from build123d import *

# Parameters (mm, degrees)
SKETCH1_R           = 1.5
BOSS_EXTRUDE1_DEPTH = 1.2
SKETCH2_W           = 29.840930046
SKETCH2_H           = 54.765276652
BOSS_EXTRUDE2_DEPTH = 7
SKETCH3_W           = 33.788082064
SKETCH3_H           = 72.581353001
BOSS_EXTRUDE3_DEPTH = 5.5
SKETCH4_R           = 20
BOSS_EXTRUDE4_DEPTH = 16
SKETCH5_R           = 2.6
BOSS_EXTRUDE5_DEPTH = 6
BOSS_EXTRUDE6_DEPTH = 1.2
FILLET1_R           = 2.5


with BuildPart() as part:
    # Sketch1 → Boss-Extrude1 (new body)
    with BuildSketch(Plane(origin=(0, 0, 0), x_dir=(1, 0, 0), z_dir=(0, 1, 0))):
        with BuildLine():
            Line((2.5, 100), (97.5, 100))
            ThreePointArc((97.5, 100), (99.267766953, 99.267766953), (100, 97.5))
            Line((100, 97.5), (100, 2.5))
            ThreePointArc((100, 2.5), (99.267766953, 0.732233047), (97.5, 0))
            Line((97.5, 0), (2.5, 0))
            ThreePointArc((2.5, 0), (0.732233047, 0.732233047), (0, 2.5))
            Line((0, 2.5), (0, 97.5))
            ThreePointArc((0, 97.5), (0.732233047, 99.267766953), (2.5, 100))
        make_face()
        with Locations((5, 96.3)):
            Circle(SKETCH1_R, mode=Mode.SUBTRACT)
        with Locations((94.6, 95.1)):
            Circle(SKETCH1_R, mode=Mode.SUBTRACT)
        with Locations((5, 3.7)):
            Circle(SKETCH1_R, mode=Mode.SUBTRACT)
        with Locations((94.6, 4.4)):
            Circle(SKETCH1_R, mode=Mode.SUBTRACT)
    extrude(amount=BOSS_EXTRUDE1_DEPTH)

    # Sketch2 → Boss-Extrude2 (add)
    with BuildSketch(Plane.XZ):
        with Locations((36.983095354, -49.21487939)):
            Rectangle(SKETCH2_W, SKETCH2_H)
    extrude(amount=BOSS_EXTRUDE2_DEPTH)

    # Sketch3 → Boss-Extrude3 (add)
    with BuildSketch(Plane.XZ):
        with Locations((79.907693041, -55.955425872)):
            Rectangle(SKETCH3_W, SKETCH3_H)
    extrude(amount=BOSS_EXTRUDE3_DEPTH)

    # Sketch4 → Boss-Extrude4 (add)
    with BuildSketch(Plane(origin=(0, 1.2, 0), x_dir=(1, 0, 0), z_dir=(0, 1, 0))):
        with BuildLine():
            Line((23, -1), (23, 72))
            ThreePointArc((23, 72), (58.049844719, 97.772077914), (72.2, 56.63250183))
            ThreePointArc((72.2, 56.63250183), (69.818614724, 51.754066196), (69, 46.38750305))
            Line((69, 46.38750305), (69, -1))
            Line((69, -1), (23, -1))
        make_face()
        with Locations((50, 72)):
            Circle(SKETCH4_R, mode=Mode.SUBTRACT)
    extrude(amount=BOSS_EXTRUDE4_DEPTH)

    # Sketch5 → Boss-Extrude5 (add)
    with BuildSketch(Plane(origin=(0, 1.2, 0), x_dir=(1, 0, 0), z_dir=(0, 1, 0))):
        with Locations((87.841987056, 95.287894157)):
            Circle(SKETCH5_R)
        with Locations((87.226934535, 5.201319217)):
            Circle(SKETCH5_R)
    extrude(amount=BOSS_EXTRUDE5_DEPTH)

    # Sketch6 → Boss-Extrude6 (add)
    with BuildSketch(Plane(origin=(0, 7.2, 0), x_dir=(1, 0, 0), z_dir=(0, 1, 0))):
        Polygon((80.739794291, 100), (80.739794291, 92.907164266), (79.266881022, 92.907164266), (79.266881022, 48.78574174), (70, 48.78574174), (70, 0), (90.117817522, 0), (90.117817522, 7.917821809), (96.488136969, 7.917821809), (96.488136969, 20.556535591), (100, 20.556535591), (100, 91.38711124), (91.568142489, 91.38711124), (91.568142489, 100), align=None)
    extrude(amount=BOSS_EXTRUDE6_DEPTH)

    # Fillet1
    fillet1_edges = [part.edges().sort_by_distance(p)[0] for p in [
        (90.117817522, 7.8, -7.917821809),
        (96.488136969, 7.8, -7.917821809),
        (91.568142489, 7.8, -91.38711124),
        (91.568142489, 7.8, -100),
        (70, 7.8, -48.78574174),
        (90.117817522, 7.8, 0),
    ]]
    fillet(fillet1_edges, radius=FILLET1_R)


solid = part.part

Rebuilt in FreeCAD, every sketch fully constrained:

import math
import FreeCAD as App
import Part
import Sketcher


def edges_at(feature, points):
    """Names of the edges that pass closest to the given points."""
    edges = feature.Shape.Edges
    near = lambda p: min(range(len(edges)), key=lambda i: edges[i].distToShape(Part.Vertex(*p))[0])
    return sorted({f"Edge{near(p) + 1}" for p in points})


def add_polygon(sketch, points):
    """Adds a closed chain of lines whose ends are joined by coincident constraints."""
    first, n = sketch.GeometryCount, len(points)
    for a, b in zip(points, points[1:] + points[:1]):
        sketch.addGeometry(Part.LineSegment(App.Vector(*a, 0), App.Vector(*b, 0)), False)
    for i in range(n):
        sketch.addConstraint(Sketcher.Constraint("Coincident", first + i, 2, first + (i + 1) % n, 1))

doc = App.newDocument("Part")
params = doc.addObject("Spreadsheet::Sheet", "Params")
for row, (alias, value) in enumerate([
    ("sketch1_diameter", "3 mm"),
    ("sketch1_radius", "2.5 mm"),
    ("sketch1_width", "95 mm"),
    ("pad1_length", "1.2 mm"),
    ("pad2_length", "7 mm"),
    ("pad3_length", "5.5 mm"),
    ("sketch4_diameter", "40 mm"),
    ("sketch4_radius", "18 mm"),
    ("sketch4_radius2", "27 mm"),
    ("sketch4_width", "46 mm"),
    ("sketch4_height", "73 mm"),
    ("pad4_length", "16 mm"),
    ("sketch5_diameter", "5.2 mm"),
    ("pad5_length", "6 mm"),
    ("pad6_length", "1.2 mm"),
    ("fillet_radius", "2.5 mm"),
], start=1):
    params.set(f"A{row}", alias)
    params.set(f"B{row}", "=" + value)
    params.setAlias(f"B{row}", alias)

body = doc.addObject("PartDesign::Body", "Body")

# Sketch on XZ plane
sketch1 = doc.addObject("Sketcher::SketchObject", "Sketch")
body.addObject(sketch1)
sketch1.AttachmentSupport = (doc.XZ_Plane, [""])
sketch1.MapMode = "FlatFace"
sketch1.addGeometry([
    Part.LineSegment(App.Vector(97.5, -100, 0), App.Vector(2.5, -100, 0)),  # 0
    Part.ArcOfCircle(Part.Circle(App.Vector(2.5, -97.5, 0), App.Vector(0, 0, 1), 2.5), math.radians(180), math.radians(270)),  # 1
    Part.LineSegment(App.Vector(0, -97.5, 0), App.Vector(0, -2.5, 0)),  # 2
    Part.ArcOfCircle(Part.Circle(App.Vector(2.5, -2.5, 0), App.Vector(0, 0, 1), 2.5), math.radians(90), math.radians(180)),  # 3
    Part.LineSegment(App.Vector(2.5, 0, 0), App.Vector(97.5, 0, 0)),  # 4
    Part.ArcOfCircle(Part.Circle(App.Vector(97.5, -2.5, 0), App.Vector(0, 0, 1), 2.5), math.radians(0), math.radians(90)),  # 5
    Part.LineSegment(App.Vector(100, -2.5, 0), App.Vector(100, -97.5, 0)),  # 6
    Part.ArcOfCircle(Part.Circle(App.Vector(97.5, -97.5, 0), App.Vector(0, 0, 1), 2.5), math.radians(-90), math.radians(0)),  # 7
    Part.Circle(App.Vector(94.6, -4.4, 0), App.Vector(0, 0, 1), 1.5),  # 8
    Part.Circle(App.Vector(5, -3.7, 0), App.Vector(0, 0, 1), 1.5),  # 9
    Part.Circle(App.Vector(94.6, -95.1, 0), App.Vector(0, 0, 1), 1.5),  # 10
    Part.Circle(App.Vector(5, -96.3, 0), App.Vector(0, 0, 1), 1.5),  # 11
], False)
sketch1.addConstraint([
    Sketcher.Constraint("Tangent", 0, 2, 1, 2),
    Sketcher.Constraint("Tangent", 1, 1, 2, 1),
    Sketcher.Constraint("Tangent", 2, 2, 3, 2),
    Sketcher.Constraint("Tangent", 3, 1, 4, 1),
    Sketcher.Constraint("Tangent", 4, 2, 5, 2),
    Sketcher.Constraint("Tangent", 5, 1, 6, 1),
    Sketcher.Constraint("Tangent", 6, 2, 7, 2),
    Sketcher.Constraint("Tangent", 7, 1, 0, 1),
    Sketcher.Constraint("Horizontal", 0),
    Sketcher.Constraint("Vertical", 2),
    Sketcher.Constraint("Horizontal", 4),
    Sketcher.Constraint("Vertical", 6),
    Sketcher.Constraint("Equal", 1, 3),
    Sketcher.Constraint("Equal", 3, 5),
    Sketcher.Constraint("Equal", 5, 7),
    Sketcher.Constraint("Equal", 8, 9),
    Sketcher.Constraint("Equal", 9, 10),
    Sketcher.Constraint("Equal", 10, 11),
    Sketcher.Constraint("PointOnObject", 1, 1, -2),
    Sketcher.Constraint("PointOnObject", 3, 1, -1),
    Sketcher.Constraint("Vertical", 8, 3, 10, 3),
    Sketcher.Constraint("Vertical", 9, 3, 11, 3),
    Sketcher.Constraint("Equal", 4, 2),
    Sketcher.Constraint("Diameter", 8, 3.0),
    Sketcher.Constraint("Radius", 1, 2.5),
    Sketcher.Constraint("DistanceX", 0, 2, 0, 1, 95.0),
    Sketcher.Constraint("DistanceX", -1, 1, 9, 3, 5.0),
    Sketcher.Constraint("DistanceX", -1, 1, 8, 3, 94.6),
    Sketcher.Constraint("DistanceY", 8, 3, -1, 1, 4.4),
    Sketcher.Constraint("DistanceY", 9, 3, -1, 1, 3.7),
    Sketcher.Constraint("DistanceY", 10, 3, -1, 1, 95.1),
    Sketcher.Constraint("DistanceY", 11, 3, -1, 1, 96.3),
])
sketch1.setExpression("Constraints[23]", "Params.sketch1_diameter")
sketch1.setExpression("Constraints[24]", "Params.sketch1_radius")
sketch1.setExpression("Constraints[25]", "Params.sketch1_width")
pad1 = doc.addObject("PartDesign::Pad", "Pad")
body.addObject(pad1)
pad1.Profile = sketch1
pad1.setExpression("Length", "Params.pad1_length")
pad1.Reversed = True

# Sketch on XZ plane
sketch2 = doc.addObject("Sketcher::SketchObject", "Sketch001")
body.addObject(sketch2)
sketch2.AttachmentSupport = (doc.XZ_Plane, [""])
sketch2.MapMode = "FlatFace"
add_polygon(sketch2, [(22.06263, -21.832241), (22.06263, -76.597518), (51.90356, -76.597518), (51.90356, -21.832241)])  # lines 0-3
sketch2.addConstraint([
    Sketcher.Constraint("Vertical", 0),
    Sketcher.Constraint("Horizontal", 1),
    Sketcher.Constraint("Vertical", 2),
    Sketcher.Constraint("Horizontal", 3),
    Sketcher.Constraint("DistanceX", 1, 1, 1, 2, 29.84093),
    Sketcher.Constraint("DistanceY", 0, 2, 0, 1, 54.765277),
    Sketcher.Constraint("DistanceX", -1, 1, 0, 2, 22.06263),
    Sketcher.Constraint("DistanceY", 2, 2, -1, 1, 21.832241),
])
pad2 = doc.addObject("PartDesign::Pad", "Pad001")
body.addObject(pad2)
pad2.Profile = sketch2
pad2.setExpression("Length", "Params.pad2_length")

# Sketch on XZ plane
sketch3 = doc.addObject("Sketcher::SketchObject", "Sketch002")
body.addObject(sketch3)
sketch3.AttachmentSupport = (doc.XZ_Plane, [""])
sketch3.MapMode = "FlatFace"
add_polygon(sketch3, [(63.013652, -19.664749), (63.013652, -92.246102), (96.801734, -92.246102), (96.801734, -19.664749)])  # lines 0-3
sketch3.addConstraint([
    Sketcher.Constraint("Vertical", 0),
    Sketcher.Constraint("Horizontal", 1),
    Sketcher.Constraint("Vertical", 2),
    Sketcher.Constraint("Horizontal", 3),
    Sketcher.Constraint("DistanceX", 1, 1, 1, 2, 33.788082),
    Sketcher.Constraint("DistanceY", 0, 2, 0, 1, 72.581353),
    Sketcher.Constraint("DistanceY", 2, 2, -1, 1, 19.664749),
    Sketcher.Constraint("DistanceX", -1, 1, 0, 2, 63.013652),
])
pad3 = doc.addObject("PartDesign::Pad", "Pad002")
body.addObject(pad3)
pad3.Profile = sketch3
pad3.setExpression("Length", "Params.pad3_length")

# Sketch on XZ plane
sketch4 = doc.addObject("Sketcher::SketchObject", "Sketch003")
body.addObject(sketch4)
sketch4.AttachmentSupport = (doc.XZ_Plane, [""])
sketch4.MapMode = "FlatFace"
sketch4.AttachmentOffset = App.Placement(App.Vector(0, 0, -1.2), App.Rotation())
sketch4.addGeometry([
    Part.LineSegment(App.Vector(23, -72, 0), App.Vector(23, 1, 0)),  # 0
    Part.LineSegment(App.Vector(23, 1, 0), App.Vector(69, 1, 0)),  # 1
    Part.LineSegment(App.Vector(69, 1, 0), App.Vector(69, -46.387503, 0)),  # 2
    Part.ArcOfCircle(Part.Circle(App.Vector(87, -46.387503, 0), App.Vector(0, 0, 1), 18), math.radians(180), math.radians(214.692131)),  # 3
    Part.ArcOfCircle(Part.Circle(App.Vector(50, -72, 0), App.Vector(0, 0, 1), 27), math.radians(180), math.radians(394.692131)),  # 4
    Part.Circle(App.Vector(50, -72, 0), App.Vector(0, 0, 1), 20),  # 5
], False)
sketch4.addConstraint([
    Sketcher.Constraint("Coincident", 0, 2, 1, 1),
    Sketcher.Constraint("Coincident", 1, 2, 2, 1),
    Sketcher.Constraint("Tangent", 2, 2, 3, 1),
    Sketcher.Constraint("Tangent", 3, 2, 4, 2),
    Sketcher.Constraint("Tangent", 4, 1, 0, 1),
    Sketcher.Constraint("Vertical", 0),
    Sketcher.Constraint("Horizontal", 1),
    Sketcher.Constraint("Vertical", 2),
    Sketcher.Constraint("Coincident", 5, 3, 4, 3),
    Sketcher.Constraint("Diameter", 5, 40.0),
    Sketcher.Constraint("Radius", 3, 18.0),
    Sketcher.Constraint("Radius", 4, 27.0),
    Sketcher.Constraint("DistanceX", 1, 1, 1, 2, 46.0),
    Sketcher.Constraint("DistanceY", 0, 1, 0, 2, 73.0),
    Sketcher.Constraint("DistanceX", -1, 1, 3, 3, 87.0),
    Sketcher.Constraint("DistanceY", 4, 3, -1, 1, 72.0),
])
sketch4.setExpression("Constraints[9]", "Params.sketch4_diameter")
sketch4.setExpression("Constraints[10]", "Params.sketch4_radius")
sketch4.setExpression("Constraints[11]", "Params.sketch4_radius2")
sketch4.setExpression("Constraints[12]", "Params.sketch4_width")
sketch4.setExpression("Constraints[13]", "Params.sketch4_height")
pad4 = doc.addObject("PartDesign::Pad", "Pad003")
body.addObject(pad4)
pad4.Profile = sketch4
pad4.setExpression("Length", "Params.pad4_length")
pad4.Reversed = True

# Sketch on XZ plane
sketch5 = doc.addObject("Sketcher::SketchObject", "Sketch004")
body.addObject(sketch5)
sketch5.AttachmentSupport = (doc.XZ_Plane, [""])
sketch5.MapMode = "FlatFace"
sketch5.AttachmentOffset = App.Placement(App.Vector(0, 0, -1.2), App.Rotation())
sketch5.addGeometry([
    Part.Circle(App.Vector(87.841987, -95.287894, 0), App.Vector(0, 0, 1), 2.6),
    Part.Circle(App.Vector(87.226935, -5.201319, 0), App.Vector(0, 0, 1), 2.6),
], False)
sketch5.addConstraint([
    Sketcher.Constraint("Equal", 0, 1),
    Sketcher.Constraint("Diameter", 0, 5.2),
    Sketcher.Constraint("DistanceY", 1, 3, -1, 1, 5.201319),
    Sketcher.Constraint("DistanceX", -1, 1, 0, 3, 87.841987),
    Sketcher.Constraint("DistanceY", 0, 3, -1, 1, 95.287894),
    Sketcher.Constraint("DistanceX", -1, 1, 1, 3, 87.226935),
])
sketch5.setExpression("Constraints[1]", "Params.sketch5_diameter")
pad5 = doc.addObject("PartDesign::Pad", "Pad004")
body.addObject(pad5)
pad5.Profile = sketch5
pad5.setExpression("Length", "Params.pad5_length")
pad5.Reversed = True

# Sketch on XZ plane
sketch6 = doc.addObject("Sketcher::SketchObject", "Sketch005")
body.addObject(sketch6)
sketch6.AttachmentSupport = (doc.XZ_Plane, [""])
sketch6.MapMode = "FlatFace"
sketch6.AttachmentOffset = App.Placement(App.Vector(0, 0, -7.2), App.Rotation())
add_polygon(sketch6, [(80.739794, -100), (80.739794, -92.907164), (79.266881, -92.907164), (79.266881, -48.785742), (70, -48.785742), (70, 0), (90.117818, 0), (90.117818, -7.917822), (96.488137, -7.917822), (96.488137, -20.556536), (100, -20.556536), (100, -91.387111), (91.568142, -91.387111), (91.568142, -100)])  # lines 0-13
sketch6.addConstraint([
    Sketcher.Constraint("Vertical", 0),
    Sketcher.Constraint("Horizontal", 1),
    Sketcher.Constraint("Vertical", 2),
    Sketcher.Constraint("Horizontal", 3),
    Sketcher.Constraint("Vertical", 4),
    Sketcher.Constraint("Horizontal", 5),
    Sketcher.Constraint("Vertical", 6),
    Sketcher.Constraint("Horizontal", 7),
    Sketcher.Constraint("Vertical", 8),
    Sketcher.Constraint("Horizontal", 9),
    Sketcher.Constraint("Vertical", 10),
    Sketcher.Constraint("Horizontal", 11),
    Sketcher.Constraint("Vertical", 12),
    Sketcher.Constraint("Horizontal", 13),
    Sketcher.Constraint("PointOnObject", 4, 2, -1),
    Sketcher.Constraint("DistanceX", -1, 1, 3, 2, 70.0),
    Sketcher.Constraint("DistanceX", -1, 1, 9, 2, 100.0),
    Sketcher.Constraint("DistanceY", 12, 2, -1, 1, 100.0),
    Sketcher.Constraint("DistanceX", 3, 2, 3, 1, 9.266881),
    Sketcher.Constraint("DistanceX", 7, 1, 7, 2, 6.370319),
    Sketcher.Constraint("DistanceX", 13, 2, 13, 1, 10.828348),
    Sketcher.Constraint("DistanceY", 4, 1, 4, 2, 48.785742),
    Sketcher.Constraint("DistanceY", 6, 2, 6, 1, 7.917822),
    Sketcher.Constraint("DistanceY", 12, 2, 12, 1, 8.612889),
    Sketcher.Constraint("DistanceX", 1, 2, 1, 1, 1.472913),
    Sketcher.Constraint("DistanceX", 5, 1, 5, 2, 20.117818),
    Sketcher.Constraint("DistanceY", 0, 1, 0, 2, 7.092836),
    Sketcher.Constraint("DistanceY", 8, 2, 8, 1, 12.638714),
])
pad6 = doc.addObject("PartDesign::Pad", "Pad005")
body.addObject(pad6)
pad6.Profile = sketch6
pad6.setExpression("Length", "Params.pad6_length")
pad6.Reversed = True
doc.recompute()

fillet = doc.addObject("PartDesign::Fillet", "Fillet")
body.addObject(fillet)
fillet.Base = (pad6, edges_at(pad6, [
    (90.118, 7.8, -7.918),
    (96.488, 7.8, -7.918),
    (91.568, 7.8, -91.387),
    (91.568, 7.8, -100),
    (70, 7.8, -48.786),
    (90.118, 7.8, 0),
]))
fillet.setExpression("Radius", "Params.fillet_radius")

doc.recompute()
